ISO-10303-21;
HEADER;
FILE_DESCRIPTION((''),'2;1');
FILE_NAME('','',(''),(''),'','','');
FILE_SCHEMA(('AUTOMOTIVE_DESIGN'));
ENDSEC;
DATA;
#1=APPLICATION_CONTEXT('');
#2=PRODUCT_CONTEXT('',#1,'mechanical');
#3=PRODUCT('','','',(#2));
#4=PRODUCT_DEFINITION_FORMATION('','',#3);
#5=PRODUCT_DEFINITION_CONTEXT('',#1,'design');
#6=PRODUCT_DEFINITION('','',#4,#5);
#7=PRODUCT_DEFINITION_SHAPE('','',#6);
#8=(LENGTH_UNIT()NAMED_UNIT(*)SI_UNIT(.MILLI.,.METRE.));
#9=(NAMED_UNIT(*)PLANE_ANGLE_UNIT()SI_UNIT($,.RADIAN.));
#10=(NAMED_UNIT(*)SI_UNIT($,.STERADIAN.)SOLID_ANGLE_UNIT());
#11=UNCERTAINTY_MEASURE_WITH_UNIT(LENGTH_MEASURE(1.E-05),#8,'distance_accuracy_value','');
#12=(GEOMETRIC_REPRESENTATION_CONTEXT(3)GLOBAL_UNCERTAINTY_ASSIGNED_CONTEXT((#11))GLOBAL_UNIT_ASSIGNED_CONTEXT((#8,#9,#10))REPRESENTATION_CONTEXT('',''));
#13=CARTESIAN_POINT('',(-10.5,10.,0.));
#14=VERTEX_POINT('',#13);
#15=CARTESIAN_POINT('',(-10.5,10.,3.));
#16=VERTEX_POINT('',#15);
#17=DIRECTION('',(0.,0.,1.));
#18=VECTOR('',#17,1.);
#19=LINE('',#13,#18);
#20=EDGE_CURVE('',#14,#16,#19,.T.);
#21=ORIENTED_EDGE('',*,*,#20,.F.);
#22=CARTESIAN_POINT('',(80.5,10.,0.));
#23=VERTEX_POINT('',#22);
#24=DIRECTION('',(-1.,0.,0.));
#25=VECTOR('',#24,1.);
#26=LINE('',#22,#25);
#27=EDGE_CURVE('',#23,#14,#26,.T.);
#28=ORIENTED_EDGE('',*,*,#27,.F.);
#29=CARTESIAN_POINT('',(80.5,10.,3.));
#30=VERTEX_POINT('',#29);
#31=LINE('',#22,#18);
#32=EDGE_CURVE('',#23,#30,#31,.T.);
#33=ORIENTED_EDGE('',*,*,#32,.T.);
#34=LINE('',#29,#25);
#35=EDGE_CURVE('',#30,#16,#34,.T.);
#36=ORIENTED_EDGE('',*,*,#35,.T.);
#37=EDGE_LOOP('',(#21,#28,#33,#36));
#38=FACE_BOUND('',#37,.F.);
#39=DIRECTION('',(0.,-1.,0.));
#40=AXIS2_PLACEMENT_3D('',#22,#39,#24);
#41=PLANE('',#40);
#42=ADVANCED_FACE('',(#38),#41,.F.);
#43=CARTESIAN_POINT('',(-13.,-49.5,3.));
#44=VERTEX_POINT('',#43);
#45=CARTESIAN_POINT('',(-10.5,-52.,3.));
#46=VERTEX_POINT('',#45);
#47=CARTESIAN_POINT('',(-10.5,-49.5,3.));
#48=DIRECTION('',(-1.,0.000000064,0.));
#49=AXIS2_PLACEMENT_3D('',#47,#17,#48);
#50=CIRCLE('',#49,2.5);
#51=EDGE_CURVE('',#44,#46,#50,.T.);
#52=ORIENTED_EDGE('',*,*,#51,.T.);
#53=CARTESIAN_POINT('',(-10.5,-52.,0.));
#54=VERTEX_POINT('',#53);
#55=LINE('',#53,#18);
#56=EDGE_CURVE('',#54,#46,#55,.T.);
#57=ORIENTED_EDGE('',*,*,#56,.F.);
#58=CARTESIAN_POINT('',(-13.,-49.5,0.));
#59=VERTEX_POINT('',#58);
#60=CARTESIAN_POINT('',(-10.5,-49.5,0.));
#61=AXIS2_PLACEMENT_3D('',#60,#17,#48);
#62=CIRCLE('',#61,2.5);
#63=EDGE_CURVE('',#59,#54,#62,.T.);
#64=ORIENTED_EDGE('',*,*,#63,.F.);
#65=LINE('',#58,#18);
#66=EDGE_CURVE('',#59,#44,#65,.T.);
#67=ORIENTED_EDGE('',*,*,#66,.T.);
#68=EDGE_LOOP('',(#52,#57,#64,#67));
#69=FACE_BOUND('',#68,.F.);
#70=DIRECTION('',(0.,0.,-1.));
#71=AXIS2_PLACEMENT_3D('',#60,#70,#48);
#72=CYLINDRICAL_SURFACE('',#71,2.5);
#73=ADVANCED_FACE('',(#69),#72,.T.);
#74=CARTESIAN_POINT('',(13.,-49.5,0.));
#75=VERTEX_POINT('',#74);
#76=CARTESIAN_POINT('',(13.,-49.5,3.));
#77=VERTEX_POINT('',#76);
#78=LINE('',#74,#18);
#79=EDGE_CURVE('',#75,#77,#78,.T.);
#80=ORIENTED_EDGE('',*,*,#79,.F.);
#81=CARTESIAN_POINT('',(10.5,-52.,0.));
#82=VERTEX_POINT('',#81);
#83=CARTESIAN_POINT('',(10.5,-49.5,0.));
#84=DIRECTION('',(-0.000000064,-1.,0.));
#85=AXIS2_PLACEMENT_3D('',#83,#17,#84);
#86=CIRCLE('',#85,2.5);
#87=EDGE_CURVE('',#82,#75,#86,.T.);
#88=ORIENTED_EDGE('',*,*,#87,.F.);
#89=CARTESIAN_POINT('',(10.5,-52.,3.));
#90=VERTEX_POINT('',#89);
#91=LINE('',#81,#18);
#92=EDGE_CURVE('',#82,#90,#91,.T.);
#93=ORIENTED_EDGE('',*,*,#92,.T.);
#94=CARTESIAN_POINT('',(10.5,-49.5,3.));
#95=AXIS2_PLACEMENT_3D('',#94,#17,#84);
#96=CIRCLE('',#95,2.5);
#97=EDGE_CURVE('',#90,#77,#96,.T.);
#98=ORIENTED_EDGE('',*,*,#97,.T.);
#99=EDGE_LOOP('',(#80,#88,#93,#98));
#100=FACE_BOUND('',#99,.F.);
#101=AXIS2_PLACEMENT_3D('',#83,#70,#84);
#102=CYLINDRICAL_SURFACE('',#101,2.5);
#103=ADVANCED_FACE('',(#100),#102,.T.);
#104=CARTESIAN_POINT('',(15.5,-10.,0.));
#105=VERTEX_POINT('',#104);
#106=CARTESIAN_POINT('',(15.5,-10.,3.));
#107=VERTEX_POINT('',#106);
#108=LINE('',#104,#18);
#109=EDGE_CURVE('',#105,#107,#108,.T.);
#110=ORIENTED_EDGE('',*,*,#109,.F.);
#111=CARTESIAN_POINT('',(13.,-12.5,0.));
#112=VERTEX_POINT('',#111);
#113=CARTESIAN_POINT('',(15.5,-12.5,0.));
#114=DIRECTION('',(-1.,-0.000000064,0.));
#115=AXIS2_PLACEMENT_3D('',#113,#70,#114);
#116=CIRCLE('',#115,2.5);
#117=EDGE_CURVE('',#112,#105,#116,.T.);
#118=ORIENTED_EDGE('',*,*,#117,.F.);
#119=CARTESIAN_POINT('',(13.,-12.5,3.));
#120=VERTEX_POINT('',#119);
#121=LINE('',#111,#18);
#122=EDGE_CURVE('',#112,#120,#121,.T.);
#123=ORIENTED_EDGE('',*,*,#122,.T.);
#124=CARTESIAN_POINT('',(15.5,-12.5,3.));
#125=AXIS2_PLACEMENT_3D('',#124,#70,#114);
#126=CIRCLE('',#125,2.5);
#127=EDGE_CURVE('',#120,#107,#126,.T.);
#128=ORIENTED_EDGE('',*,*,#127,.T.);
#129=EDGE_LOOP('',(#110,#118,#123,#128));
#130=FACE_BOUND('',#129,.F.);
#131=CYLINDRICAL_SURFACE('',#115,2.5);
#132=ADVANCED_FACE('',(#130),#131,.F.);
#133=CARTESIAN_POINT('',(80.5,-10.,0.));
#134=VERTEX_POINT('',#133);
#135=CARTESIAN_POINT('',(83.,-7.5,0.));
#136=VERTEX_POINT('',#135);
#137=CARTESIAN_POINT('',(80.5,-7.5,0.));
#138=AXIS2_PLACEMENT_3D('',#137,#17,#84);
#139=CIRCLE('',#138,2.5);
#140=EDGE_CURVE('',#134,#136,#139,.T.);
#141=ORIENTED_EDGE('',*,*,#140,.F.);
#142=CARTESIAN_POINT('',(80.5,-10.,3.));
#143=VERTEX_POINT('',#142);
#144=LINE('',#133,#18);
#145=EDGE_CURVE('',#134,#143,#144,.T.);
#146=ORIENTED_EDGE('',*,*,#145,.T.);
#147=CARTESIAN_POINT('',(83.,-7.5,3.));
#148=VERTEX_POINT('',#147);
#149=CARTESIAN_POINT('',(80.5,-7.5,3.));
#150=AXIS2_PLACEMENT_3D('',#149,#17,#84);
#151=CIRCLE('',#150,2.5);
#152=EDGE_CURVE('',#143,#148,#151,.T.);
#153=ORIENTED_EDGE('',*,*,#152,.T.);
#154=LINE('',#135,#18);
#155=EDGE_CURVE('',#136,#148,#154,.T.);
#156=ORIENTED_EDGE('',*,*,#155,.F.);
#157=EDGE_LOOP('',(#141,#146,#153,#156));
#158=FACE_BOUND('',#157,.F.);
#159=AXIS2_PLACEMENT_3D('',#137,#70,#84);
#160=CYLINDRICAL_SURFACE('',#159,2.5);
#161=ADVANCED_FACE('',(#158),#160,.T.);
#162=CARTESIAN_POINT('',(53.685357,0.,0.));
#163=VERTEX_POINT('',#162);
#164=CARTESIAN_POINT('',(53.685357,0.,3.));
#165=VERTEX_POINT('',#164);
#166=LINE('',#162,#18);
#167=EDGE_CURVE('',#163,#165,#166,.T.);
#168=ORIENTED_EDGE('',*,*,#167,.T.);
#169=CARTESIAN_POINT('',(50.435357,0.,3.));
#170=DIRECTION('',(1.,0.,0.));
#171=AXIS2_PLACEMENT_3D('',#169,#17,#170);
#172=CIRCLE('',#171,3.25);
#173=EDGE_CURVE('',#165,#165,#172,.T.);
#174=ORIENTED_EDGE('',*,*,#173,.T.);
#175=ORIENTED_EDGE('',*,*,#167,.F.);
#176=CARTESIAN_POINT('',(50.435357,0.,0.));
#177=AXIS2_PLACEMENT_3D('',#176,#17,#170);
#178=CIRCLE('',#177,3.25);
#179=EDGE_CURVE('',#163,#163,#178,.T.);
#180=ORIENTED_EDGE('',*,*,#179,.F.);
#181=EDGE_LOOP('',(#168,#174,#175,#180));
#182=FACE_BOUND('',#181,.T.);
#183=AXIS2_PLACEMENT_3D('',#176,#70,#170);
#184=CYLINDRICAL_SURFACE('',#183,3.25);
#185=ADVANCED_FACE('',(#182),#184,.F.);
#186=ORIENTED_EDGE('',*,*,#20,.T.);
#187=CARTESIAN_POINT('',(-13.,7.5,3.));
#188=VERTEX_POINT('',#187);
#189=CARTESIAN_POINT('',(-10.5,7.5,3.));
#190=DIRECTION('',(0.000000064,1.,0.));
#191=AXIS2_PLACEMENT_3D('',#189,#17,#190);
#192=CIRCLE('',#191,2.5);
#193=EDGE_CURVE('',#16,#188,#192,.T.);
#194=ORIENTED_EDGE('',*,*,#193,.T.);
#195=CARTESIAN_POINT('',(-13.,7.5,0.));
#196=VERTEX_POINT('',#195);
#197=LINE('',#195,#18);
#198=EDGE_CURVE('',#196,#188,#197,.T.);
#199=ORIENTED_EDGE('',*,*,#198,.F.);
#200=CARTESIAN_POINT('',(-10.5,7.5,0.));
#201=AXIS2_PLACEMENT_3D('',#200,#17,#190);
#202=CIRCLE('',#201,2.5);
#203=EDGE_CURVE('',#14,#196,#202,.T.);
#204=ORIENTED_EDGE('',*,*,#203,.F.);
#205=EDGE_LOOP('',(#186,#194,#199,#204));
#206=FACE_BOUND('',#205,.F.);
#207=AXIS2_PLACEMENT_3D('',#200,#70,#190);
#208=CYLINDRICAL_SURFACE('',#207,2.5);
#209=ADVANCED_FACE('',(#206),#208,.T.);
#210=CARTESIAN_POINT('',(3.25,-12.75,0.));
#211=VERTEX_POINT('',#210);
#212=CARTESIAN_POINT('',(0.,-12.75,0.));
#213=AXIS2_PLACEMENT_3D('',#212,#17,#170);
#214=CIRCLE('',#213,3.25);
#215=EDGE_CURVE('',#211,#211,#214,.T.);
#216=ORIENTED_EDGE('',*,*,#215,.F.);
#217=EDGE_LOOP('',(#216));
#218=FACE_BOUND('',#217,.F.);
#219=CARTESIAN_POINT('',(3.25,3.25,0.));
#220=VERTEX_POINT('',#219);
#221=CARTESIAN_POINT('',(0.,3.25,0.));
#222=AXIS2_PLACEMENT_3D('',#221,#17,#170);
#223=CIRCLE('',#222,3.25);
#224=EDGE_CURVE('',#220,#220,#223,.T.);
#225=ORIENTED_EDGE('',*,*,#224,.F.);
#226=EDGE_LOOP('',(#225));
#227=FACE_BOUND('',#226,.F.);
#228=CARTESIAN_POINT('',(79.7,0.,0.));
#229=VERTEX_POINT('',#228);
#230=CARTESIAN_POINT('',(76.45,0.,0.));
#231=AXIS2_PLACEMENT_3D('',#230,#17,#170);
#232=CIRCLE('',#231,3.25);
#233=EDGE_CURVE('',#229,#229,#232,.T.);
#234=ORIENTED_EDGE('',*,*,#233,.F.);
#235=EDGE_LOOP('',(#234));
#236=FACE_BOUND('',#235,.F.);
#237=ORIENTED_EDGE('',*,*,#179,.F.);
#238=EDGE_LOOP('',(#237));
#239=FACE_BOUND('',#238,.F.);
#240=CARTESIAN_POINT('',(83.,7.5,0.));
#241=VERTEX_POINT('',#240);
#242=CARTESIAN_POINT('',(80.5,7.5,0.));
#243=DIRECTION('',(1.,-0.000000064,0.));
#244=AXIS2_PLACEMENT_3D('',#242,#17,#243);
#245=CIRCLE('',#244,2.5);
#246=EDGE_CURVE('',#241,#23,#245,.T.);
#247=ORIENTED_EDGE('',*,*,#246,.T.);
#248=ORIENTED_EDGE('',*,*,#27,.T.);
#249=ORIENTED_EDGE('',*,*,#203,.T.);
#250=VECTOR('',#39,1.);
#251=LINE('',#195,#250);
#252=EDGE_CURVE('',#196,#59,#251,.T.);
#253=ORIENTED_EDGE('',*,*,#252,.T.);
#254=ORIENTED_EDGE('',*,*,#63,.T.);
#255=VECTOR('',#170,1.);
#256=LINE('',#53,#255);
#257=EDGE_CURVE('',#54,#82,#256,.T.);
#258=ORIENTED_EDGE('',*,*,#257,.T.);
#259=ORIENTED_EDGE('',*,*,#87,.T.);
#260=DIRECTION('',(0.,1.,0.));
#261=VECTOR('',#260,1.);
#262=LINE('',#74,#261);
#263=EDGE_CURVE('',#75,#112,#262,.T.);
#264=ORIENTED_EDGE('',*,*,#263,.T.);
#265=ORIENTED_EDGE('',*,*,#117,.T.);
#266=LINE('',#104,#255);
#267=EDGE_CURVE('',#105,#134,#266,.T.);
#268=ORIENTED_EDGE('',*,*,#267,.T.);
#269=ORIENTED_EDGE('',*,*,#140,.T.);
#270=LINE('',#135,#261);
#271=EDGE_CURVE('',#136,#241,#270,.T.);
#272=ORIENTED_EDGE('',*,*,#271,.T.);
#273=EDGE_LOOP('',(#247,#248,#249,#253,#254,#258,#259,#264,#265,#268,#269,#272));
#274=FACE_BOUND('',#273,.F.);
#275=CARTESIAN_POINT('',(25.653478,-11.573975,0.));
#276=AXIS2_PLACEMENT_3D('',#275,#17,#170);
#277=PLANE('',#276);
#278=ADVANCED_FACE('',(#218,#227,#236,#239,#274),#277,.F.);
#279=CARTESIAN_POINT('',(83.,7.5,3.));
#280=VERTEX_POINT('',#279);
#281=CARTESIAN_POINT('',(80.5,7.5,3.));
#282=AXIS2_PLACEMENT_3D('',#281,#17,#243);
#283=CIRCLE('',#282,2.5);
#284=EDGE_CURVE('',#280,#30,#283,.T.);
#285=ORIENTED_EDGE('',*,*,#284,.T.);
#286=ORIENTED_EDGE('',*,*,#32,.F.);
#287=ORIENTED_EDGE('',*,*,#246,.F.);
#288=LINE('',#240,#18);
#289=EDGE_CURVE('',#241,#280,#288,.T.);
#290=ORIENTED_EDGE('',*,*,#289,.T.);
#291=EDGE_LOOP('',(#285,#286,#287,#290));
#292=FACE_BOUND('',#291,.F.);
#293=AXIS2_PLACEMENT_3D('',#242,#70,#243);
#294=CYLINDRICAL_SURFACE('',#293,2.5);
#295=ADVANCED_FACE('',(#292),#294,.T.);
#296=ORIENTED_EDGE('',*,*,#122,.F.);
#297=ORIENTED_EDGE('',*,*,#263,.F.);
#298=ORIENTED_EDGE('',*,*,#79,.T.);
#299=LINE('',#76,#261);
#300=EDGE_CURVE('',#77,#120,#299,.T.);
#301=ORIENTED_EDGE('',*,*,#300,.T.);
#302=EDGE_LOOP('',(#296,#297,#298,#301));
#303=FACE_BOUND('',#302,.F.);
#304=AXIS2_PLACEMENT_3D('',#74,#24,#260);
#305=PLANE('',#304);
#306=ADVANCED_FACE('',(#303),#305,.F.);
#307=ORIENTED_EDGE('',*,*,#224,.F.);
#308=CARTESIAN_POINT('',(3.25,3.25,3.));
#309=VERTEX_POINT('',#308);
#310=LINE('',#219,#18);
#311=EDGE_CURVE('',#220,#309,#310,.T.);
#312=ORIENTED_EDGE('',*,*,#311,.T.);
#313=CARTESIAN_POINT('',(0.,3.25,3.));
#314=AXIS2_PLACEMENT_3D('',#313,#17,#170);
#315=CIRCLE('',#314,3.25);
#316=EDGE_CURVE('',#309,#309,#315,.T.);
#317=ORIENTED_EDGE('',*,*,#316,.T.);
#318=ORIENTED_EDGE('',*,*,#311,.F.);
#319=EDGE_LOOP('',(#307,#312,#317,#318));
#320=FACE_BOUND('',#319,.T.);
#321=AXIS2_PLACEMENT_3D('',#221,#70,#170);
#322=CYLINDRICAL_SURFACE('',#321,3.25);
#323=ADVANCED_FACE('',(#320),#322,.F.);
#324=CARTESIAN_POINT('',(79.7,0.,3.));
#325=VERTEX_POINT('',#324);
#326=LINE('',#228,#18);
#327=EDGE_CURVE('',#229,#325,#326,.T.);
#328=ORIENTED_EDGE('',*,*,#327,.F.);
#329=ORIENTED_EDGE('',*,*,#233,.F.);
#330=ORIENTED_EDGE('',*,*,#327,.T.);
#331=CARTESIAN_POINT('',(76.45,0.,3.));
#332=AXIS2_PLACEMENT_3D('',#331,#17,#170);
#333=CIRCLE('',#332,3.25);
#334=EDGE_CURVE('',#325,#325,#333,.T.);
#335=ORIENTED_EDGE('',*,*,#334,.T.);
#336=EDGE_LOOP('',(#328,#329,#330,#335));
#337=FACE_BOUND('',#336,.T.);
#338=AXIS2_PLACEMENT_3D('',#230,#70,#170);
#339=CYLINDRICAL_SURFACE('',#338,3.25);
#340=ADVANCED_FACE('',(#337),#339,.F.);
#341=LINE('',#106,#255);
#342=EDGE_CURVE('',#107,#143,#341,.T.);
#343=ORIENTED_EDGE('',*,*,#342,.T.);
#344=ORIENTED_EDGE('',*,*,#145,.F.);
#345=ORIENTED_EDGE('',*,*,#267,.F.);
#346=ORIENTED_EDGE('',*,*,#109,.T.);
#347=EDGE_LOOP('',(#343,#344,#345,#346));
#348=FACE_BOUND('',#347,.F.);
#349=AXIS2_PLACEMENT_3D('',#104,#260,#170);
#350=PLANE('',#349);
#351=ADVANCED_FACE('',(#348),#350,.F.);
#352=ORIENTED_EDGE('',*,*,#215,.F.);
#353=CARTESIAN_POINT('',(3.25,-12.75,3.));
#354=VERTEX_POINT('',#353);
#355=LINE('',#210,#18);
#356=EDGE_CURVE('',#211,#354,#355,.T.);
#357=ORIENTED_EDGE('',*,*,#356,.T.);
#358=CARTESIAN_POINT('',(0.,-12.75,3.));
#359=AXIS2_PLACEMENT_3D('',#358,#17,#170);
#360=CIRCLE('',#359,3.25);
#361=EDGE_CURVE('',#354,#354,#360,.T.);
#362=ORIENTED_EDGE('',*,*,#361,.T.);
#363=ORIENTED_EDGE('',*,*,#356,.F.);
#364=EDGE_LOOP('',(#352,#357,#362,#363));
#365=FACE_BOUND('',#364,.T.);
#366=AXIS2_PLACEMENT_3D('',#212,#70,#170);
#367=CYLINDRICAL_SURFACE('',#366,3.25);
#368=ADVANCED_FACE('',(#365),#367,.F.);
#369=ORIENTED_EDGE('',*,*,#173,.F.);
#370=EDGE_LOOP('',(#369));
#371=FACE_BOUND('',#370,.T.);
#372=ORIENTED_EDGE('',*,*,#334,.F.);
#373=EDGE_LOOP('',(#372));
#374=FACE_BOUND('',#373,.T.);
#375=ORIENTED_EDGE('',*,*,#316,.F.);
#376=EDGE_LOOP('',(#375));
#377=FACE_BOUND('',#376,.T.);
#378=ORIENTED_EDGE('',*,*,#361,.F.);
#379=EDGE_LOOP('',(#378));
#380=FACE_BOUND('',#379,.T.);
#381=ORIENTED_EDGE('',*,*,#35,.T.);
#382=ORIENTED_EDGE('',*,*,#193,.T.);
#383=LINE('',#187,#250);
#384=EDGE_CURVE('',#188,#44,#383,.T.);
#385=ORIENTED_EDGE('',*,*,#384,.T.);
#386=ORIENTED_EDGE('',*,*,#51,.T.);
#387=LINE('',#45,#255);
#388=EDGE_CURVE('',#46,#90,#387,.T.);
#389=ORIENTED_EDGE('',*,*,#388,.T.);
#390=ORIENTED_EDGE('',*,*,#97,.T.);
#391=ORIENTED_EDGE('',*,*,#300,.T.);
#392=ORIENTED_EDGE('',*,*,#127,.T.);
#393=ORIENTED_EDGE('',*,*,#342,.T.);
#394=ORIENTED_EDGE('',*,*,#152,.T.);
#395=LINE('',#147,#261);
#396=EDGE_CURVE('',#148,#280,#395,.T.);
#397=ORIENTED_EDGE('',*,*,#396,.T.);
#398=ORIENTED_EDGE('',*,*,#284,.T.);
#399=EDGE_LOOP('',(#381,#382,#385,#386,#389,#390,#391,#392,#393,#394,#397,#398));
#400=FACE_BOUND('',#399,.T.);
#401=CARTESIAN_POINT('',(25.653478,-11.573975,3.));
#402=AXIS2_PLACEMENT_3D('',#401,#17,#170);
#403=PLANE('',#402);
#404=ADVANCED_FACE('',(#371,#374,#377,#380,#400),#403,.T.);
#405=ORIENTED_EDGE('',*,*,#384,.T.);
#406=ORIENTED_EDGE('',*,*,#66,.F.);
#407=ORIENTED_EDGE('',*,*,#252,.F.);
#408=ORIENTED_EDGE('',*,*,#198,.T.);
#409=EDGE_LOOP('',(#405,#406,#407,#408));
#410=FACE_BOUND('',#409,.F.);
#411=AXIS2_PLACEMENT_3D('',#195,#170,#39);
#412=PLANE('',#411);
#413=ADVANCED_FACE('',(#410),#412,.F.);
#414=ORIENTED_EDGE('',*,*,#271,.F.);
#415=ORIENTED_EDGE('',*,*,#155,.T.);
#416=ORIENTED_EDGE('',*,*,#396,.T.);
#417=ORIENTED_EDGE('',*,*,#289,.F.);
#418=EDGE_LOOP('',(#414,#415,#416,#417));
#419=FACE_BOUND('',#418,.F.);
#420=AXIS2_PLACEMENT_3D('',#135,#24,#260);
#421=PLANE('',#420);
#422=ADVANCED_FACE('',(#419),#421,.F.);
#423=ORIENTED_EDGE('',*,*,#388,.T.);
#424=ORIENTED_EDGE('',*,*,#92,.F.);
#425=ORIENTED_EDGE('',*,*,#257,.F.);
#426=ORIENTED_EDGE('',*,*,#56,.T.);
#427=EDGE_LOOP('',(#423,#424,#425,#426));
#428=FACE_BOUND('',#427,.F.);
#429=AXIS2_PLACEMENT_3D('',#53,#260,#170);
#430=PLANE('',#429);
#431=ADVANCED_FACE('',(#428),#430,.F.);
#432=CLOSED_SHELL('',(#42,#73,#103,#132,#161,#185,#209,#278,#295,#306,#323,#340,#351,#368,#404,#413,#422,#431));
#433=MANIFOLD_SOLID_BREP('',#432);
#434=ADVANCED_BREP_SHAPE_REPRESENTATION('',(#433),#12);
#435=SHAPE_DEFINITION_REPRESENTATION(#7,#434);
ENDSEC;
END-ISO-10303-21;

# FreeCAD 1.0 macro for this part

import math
import FreeCAD as App
import Part
import Sketcher

V = App.Vector
Q = App.Units.Quantity

doc = App.newDocument("Part")
body = doc.addObject("PartDesign::Body", "Body")

# Sketch on XY plane
sketch1 = body.newObject("Sketcher::SketchObject", "Sketch")
sketch1.AttachmentSupport = (doc.getObject("XY_Plane"), [""])
sketch1.MapMode = "FlatFace"
sketch1.addGeometry([
    Part.LineSegment(V(80.5, 10, 0), V(-10.5, 10, 0)),  # 0
    Part.ArcOfCircle(Part.Circle(V(-10.5, 7.5, 0), V(0, 0, 1), 2.5), math.radians(89.999996), math.radians(180.000004)),  # 1
    Part.LineSegment(V(-13, 7.5, 0), V(-13, -49.5, 0)),  # 2
    Part.ArcOfCircle(Part.Circle(V(-10.5, -49.5, 0), V(0, 0, 1), 2.5), math.radians(179.999996), math.radians(270.000004)),  # 3
    Part.LineSegment(V(-10.5, -52, 0), V(10.5, -52, 0)),  # 4
    Part.ArcOfCircle(Part.Circle(V(10.5, -49.5, 0), V(0, 0, 1), 2.5), math.radians(-90.000004), math.radians(0.000004)),  # 5
    Part.LineSegment(V(13, -49.5, 0), V(13, -12.5, 0)),  # 6
    Part.ArcOfCircle(Part.Circle(V(15.5, -12.5, 0), V(0, 0, 1), 2.5), math.radians(89.999996), math.radians(180.000004)),  # 7
    Part.LineSegment(V(15.5, -10, 0), V(80.5, -10, 0)),  # 8
    Part.ArcOfCircle(Part.Circle(V(80.5, -7.5, 0), V(0, 0, 1), 2.5), math.radians(-90.000004), math.radians(0.000004)),  # 9
    Part.LineSegment(V(83, -7.5, 0), V(83, 7.5, 0)),  # 10
    Part.ArcOfCircle(Part.Circle(V(80.5, 7.5, 0), V(0, 0, 1), 2.5), math.radians(-0.000004), math.radians(90.000004)),  # 11
    Part.Circle(V(0, -12.75, 0), V(0, 0, 1), 3.25),  # 12
    Part.Circle(V(0, 3.25, 0), V(0, 0, 1), 3.25),  # 13
    Part.Circle(V(50.435357, 0, 0), V(0, 0, 1), 3.25),  # 14
    Part.Circle(V(76.45, 0, 0), V(0, 0, 1), 3.25),  # 15
], False)
sketch1.addConstraint([
    Sketcher.Constraint("Tangent", 0, 2, 1, 1),
    Sketcher.Constraint("Tangent", 1, 2, 2, 1),
    Sketcher.Constraint("Tangent", 2, 2, 3, 1),
    Sketcher.Constraint("Tangent", 3, 2, 4, 1),
    Sketcher.Constraint("Tangent", 4, 2, 5, 1),
    Sketcher.Constraint("Tangent", 5, 2, 6, 1),
    Sketcher.Constraint("Tangent", 6, 2, 7, 2),
    Sketcher.Constraint("Tangent", 7, 1, 8, 1),
    Sketcher.Constraint("Tangent", 8, 2, 9, 1),
    Sketcher.Constraint("Tangent", 9, 2, 10, 1),
    Sketcher.Constraint("Tangent", 10, 2, 11, 1),
    Sketcher.Constraint("Tangent", 11, 2, 0, 1),
    Sketcher.Constraint("Horizontal", 0),
    Sketcher.Constraint("Vertical", 2),
    Sketcher.Constraint("Horizontal", 4),
    Sketcher.Constraint("Vertical", 6),
    Sketcher.Constraint("Horizontal", 8),
    Sketcher.Constraint("Vertical", 10),
    Sketcher.Constraint("Equal", 1, 3),
    Sketcher.Constraint("Equal", 3, 5),
    Sketcher.Constraint("Equal", 5, 7),
    Sketcher.Constraint("Equal", 7, 9),
    Sketcher.Constraint("Equal", 9, 11),
    Sketcher.Constraint("Equal", 12, 13),
    Sketcher.Constraint("Equal", 13, 14),
    Sketcher.Constraint("Equal", 14, 15),
    Sketcher.Constraint("PointOnObject", 12, 3, -2),
    Sketcher.Constraint("PointOnObject", 13, 3, -2),
    Sketcher.Constraint("PointOnObject", 14, 3, -1),
    Sketcher.Constraint("PointOnObject", 15, 3, -1),
    Sketcher.Constraint("Diameter", 12, Q("6.5 mm")),
    Sketcher.Constraint("Radius", 1, Q("2.5 mm")),
    Sketcher.Constraint("DistanceX", 0, 2, 0, 1, Q("91 mm")),
    Sketcher.Constraint("DistanceX", 4, 1, 4, 2, Q("21 mm")),
    Sketcher.Constraint("DistanceY", 2, 2, 2, 1, Q("57 mm")),
    Sketcher.Constraint("DistanceY", 6, 1, 6, 2, Q("37 mm")),
    Sketcher.Constraint("DistanceY", -1, 1, 0, 2, Q("10 mm")),
    Sketcher.Constraint("DistanceX", 1, 2, -1, 1, Q("13 mm")),
    Sketcher.Constraint("DistanceY", 12, 3, 13, 3, Q("16 mm")),
    Sketcher.Constraint("DistanceY", 12, 3, -1, 1, Q("12.75 mm")),
    Sketcher.Constraint("DistanceX", -1, 1, 15, 3, Q("76.45 mm")),
    Sketcher.Constraint("DistanceX", -1, 1, 14, 3, Q("50.435357 mm")),
])
pad1 = body.newObject("PartDesign::Pad", "Pad")
pad1.Profile = sketch1
pad1.Length = 3

doc.recompute()
